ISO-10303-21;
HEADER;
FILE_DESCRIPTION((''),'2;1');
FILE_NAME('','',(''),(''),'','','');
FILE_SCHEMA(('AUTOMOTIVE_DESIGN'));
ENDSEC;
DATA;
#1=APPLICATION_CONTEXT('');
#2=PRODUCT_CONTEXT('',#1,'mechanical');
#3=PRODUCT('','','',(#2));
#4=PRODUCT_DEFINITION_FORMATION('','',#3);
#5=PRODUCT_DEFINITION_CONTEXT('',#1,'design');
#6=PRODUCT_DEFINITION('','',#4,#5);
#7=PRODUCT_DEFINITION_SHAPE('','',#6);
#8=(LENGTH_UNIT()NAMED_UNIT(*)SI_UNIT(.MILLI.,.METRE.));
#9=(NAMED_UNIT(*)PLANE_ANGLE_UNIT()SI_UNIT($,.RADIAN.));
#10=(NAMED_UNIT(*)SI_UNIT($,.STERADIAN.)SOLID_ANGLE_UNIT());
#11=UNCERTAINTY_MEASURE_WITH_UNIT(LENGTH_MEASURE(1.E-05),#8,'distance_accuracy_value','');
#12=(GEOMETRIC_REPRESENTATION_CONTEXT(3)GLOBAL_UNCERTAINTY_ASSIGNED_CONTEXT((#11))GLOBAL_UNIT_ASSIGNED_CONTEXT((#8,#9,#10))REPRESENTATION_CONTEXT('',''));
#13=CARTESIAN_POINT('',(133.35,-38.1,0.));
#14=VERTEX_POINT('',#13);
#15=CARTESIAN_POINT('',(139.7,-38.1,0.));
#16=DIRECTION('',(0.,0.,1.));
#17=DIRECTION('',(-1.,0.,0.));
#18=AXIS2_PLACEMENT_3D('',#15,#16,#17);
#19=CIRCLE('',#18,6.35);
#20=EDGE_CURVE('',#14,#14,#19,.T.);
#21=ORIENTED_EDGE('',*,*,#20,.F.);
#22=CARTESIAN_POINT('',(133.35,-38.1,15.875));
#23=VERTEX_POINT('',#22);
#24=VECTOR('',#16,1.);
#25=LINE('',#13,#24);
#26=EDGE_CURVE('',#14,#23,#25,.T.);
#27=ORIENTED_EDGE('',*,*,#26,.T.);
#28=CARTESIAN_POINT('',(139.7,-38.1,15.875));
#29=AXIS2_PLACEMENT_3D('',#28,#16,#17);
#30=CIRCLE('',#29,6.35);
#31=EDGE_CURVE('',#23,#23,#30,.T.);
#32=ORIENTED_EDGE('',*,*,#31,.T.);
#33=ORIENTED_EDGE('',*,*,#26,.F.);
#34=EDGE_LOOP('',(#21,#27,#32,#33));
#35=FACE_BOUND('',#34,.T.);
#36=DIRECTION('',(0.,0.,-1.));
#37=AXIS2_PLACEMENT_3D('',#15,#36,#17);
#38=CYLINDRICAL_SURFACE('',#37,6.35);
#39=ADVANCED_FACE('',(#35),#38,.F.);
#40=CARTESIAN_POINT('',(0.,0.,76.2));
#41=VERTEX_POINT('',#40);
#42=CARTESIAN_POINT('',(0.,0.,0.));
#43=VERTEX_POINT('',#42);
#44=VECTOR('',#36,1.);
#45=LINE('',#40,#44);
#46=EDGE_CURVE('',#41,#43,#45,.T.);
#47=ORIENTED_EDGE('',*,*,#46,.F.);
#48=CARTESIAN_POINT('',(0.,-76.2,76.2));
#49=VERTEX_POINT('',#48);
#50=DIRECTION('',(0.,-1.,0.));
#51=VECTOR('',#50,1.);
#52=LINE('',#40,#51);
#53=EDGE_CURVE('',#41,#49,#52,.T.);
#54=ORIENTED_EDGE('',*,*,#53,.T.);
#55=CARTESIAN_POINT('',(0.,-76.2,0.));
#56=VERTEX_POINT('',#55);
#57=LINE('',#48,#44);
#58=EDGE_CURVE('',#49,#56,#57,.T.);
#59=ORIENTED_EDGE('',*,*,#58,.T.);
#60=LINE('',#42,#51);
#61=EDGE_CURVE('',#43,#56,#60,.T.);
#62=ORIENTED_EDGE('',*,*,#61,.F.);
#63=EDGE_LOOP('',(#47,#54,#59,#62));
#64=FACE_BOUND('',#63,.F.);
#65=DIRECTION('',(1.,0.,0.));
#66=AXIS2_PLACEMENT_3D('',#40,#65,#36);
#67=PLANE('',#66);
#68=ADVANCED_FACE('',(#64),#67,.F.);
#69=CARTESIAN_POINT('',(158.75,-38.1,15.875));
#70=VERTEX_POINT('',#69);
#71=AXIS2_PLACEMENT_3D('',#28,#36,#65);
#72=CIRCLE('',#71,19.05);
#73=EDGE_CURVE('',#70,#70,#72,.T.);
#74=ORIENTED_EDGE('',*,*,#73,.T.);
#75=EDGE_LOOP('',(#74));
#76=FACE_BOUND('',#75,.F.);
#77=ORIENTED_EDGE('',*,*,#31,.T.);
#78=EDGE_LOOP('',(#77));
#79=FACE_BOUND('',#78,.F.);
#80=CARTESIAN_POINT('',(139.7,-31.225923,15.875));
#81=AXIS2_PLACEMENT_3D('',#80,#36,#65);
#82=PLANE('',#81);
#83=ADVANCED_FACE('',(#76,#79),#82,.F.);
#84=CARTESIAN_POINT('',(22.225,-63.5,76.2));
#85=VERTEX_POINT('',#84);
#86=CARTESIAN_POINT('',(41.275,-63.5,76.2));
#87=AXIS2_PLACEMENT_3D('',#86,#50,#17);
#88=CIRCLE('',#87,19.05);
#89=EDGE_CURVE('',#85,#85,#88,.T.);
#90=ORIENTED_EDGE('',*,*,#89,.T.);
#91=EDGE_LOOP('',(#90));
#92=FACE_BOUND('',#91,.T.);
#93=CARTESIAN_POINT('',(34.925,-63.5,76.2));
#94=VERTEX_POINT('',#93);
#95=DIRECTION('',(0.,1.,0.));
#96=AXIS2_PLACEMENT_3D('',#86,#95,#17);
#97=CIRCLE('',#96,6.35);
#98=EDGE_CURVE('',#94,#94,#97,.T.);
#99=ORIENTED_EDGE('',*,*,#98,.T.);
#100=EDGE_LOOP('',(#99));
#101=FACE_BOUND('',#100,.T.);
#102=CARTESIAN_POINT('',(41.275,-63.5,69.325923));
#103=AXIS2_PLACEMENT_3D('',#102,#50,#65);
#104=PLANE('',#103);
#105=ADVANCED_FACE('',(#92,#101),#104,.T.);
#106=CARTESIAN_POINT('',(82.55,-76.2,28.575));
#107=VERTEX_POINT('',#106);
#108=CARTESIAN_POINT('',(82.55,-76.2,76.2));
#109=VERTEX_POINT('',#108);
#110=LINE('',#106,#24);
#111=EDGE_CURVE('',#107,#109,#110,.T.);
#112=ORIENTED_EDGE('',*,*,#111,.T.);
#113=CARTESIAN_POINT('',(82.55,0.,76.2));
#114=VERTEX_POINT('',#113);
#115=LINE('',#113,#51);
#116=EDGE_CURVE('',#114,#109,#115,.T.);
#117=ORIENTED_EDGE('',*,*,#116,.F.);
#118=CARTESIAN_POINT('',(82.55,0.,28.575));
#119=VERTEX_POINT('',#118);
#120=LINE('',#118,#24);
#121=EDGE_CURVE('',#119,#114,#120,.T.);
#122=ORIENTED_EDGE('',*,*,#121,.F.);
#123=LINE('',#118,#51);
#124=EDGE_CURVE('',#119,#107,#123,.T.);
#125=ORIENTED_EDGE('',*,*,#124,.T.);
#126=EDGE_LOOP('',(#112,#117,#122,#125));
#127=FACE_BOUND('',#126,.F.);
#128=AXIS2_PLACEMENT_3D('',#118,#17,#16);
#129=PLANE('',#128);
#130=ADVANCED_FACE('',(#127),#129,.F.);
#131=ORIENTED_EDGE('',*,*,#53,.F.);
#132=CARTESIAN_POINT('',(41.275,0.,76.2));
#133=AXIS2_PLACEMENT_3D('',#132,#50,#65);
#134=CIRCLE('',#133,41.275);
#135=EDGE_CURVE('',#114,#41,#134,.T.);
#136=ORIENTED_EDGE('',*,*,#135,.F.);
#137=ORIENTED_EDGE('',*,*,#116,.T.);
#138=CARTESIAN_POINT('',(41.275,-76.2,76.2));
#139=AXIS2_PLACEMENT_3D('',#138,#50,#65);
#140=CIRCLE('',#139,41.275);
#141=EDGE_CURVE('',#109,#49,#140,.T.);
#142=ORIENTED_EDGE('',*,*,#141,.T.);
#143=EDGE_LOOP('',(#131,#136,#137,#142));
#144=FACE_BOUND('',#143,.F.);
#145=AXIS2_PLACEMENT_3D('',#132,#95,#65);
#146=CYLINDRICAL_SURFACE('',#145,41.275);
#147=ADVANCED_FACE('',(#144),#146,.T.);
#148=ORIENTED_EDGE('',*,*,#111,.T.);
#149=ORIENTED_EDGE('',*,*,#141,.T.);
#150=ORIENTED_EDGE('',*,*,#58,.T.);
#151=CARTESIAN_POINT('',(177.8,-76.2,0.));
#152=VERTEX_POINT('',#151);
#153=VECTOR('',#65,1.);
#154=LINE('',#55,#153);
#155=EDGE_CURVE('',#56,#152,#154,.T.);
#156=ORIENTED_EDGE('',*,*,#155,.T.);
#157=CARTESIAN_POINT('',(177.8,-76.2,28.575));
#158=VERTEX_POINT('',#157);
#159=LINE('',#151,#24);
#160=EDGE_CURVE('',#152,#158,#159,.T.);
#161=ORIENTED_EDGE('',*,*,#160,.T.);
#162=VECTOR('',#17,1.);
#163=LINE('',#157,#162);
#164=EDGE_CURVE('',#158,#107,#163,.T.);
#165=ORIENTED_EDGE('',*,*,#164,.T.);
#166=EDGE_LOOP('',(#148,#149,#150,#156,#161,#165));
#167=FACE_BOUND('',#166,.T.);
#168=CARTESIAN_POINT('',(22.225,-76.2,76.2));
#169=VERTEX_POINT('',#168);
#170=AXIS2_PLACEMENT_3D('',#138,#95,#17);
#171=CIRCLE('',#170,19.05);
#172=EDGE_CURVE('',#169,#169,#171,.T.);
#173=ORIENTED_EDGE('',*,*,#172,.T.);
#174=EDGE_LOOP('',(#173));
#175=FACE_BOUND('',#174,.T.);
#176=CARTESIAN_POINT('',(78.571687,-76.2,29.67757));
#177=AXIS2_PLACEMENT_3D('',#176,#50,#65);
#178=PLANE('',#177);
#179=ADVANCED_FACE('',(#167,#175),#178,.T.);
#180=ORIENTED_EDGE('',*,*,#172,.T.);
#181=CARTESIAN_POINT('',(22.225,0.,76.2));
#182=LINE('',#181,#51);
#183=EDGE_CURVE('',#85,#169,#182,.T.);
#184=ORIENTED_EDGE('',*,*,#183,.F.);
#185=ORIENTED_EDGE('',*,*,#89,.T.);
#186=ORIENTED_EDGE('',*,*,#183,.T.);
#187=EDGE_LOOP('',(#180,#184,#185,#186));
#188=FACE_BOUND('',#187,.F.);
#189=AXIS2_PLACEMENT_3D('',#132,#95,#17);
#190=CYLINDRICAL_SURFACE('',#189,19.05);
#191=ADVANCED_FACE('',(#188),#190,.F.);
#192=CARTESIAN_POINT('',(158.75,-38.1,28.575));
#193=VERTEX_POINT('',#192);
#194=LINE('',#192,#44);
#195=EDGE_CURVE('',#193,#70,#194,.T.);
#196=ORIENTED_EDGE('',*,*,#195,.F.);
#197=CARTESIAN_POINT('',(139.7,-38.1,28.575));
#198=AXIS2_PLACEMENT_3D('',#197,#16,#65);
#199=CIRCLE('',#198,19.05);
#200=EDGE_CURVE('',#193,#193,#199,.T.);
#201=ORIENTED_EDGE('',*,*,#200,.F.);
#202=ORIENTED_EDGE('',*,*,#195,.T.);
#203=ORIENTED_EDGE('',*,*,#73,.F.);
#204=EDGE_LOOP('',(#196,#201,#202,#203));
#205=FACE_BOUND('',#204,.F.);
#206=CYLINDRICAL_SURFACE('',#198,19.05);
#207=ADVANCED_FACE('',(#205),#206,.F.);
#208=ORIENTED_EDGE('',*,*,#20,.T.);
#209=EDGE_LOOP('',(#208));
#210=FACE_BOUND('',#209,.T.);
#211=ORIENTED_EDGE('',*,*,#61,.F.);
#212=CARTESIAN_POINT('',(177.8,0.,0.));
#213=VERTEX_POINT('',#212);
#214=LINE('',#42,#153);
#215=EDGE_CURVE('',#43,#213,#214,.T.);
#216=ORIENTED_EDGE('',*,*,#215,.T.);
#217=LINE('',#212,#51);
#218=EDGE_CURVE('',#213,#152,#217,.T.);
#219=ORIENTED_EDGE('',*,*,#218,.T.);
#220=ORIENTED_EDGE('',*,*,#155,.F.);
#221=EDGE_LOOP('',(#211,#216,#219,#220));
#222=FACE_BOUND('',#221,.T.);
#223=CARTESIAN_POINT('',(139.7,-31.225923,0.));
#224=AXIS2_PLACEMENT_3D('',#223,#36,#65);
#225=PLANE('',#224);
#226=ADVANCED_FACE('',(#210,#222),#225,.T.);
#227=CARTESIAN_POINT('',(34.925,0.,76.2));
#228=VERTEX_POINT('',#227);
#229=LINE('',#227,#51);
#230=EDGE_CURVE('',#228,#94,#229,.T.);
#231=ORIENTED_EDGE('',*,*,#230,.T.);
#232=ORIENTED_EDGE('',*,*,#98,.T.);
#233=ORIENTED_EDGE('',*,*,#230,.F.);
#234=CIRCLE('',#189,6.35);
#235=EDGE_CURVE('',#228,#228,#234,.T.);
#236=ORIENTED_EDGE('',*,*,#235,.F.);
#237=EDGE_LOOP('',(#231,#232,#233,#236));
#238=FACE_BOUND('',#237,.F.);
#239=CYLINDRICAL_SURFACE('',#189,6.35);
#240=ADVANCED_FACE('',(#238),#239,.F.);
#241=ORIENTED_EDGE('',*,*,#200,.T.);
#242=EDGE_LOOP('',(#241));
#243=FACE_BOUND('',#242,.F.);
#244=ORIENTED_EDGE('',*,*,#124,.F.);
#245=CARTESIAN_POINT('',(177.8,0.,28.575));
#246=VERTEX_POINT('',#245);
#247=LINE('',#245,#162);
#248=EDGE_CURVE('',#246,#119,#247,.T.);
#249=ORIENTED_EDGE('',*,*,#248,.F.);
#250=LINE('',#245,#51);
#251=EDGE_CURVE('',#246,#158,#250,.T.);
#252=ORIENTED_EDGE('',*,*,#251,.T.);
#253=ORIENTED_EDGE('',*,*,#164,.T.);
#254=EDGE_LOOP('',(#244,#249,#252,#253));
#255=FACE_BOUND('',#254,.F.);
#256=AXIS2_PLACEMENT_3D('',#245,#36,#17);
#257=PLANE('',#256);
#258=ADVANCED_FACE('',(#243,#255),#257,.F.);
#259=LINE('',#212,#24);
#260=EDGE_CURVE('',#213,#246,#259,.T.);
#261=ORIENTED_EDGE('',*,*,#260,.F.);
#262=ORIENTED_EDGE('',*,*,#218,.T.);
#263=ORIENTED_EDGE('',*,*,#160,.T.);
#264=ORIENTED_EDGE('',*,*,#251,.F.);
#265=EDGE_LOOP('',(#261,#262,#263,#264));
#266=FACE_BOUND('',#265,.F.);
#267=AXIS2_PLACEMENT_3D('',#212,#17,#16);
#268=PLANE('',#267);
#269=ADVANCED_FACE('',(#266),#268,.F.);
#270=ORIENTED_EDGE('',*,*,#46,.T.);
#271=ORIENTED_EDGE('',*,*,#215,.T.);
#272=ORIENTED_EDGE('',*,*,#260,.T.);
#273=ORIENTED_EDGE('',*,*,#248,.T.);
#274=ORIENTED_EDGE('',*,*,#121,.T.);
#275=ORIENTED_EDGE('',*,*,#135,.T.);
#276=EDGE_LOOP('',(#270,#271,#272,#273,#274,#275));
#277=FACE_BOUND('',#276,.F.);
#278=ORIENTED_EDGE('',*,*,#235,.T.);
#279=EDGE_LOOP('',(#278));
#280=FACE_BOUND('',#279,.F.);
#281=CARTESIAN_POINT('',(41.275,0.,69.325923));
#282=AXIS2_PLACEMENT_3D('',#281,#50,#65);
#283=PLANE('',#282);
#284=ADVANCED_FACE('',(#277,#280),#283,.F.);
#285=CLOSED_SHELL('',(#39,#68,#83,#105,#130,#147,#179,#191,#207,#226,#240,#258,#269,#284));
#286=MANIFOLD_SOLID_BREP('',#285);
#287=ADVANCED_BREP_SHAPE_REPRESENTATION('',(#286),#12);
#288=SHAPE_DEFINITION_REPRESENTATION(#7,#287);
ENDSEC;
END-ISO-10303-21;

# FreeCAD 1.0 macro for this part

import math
import FreeCAD as App
import Part
import Sketcher
from FreeCAD import Vector
Q = App.Units.Quantity

doc = App.newDocument("Part")
body = doc.addObject("PartDesign::Body", "Body")

sketch1 = body.newObject("Sketcher::SketchObject", "Sketch")
sketch1.AttachmentSupport = (doc.getObject("XZ_Plane"), [""])
sketch1.MapMode = "FlatFace"
sketch1.addGeometry([
    Part.LineSegment(Vector(0, 76, 0), Vector(0, 0, 0)),
    Part.LineSegment(Vector(0, 0, 0), Vector(178, 0, 0)),
    Part.LineSegment(Vector(178, 0, 0), Vector(178, 29, 0)),
    Part.LineSegment(Vector(178, 29, 0), Vector(83, 29, 0)),
    Part.LineSegment(Vector(83, 29, 0), Vector(83, 76, 0)),
    Part.ArcOfCircle(Part.Circle(Vector(41, 76, 0), Vector(0, 0, 1), 41), math.radians(0), math.radians(180)),
    Part.Circle(Vector(41, 76, 0), Vector(0, 0, 1), 19),
], False)
sketch1.addConstraint([
    Sketcher.Constraint("Coincident", 0, 2, 1, 1),
    Sketcher.Constraint("Coincident", 1, 2, 2, 1),
    Sketcher.Constraint("Coincident", 2, 2, 3, 1),
    Sketcher.Constraint("Coincident", 3, 2, 4, 1),
    Sketcher.Constraint("Tangent", 4, 2, 5, 1),
    Sketcher.Constraint("Tangent", 5, 2, 0, 1),
    Sketcher.Constraint("Vertical", 0),
    Sketcher.Constraint("Horizontal", 1),
    Sketcher.Constraint("Vertical", 2),
    Sketcher.Constraint("Horizontal", 3),
    Sketcher.Constraint("Vertical", 4),
    Sketcher.Constraint("Coincident", 0, 2, -1, 1),
    Sketcher.Constraint("Coincident", 6, 3, 5, 3),
    Sketcher.Constraint("Diameter", 6, Q("1.5 in")),
    Sketcher.Constraint("DistanceX", 1, 1, 1, 2, Q("7 in")),
    Sketcher.Constraint("DistanceY", 0, 2, 0, 1, Q("3 in")),
    Sketcher.Constraint("Radius", 5, Q("1.625 in")),
    Sketcher.Constraint("DistanceY", 2, 1, 2, 2, Q("1.125 in")),
])
pad1 = body.newObject("PartDesign::Pad", "Pad")
pad1.Profile = sketch1
pad1.Length = Q("3 in")

sketch2 = body.newObject("Sketcher::SketchObject", "Sketch001")
sketch2.AttachmentSupport = (doc.getObject("XZ_Plane"), [""])
sketch2.MapMode = "FlatFace"
sketch2.addGeometry([
    Part.Circle(Vector(41, 76, 0), Vector(0, 0, 1), 19),
    Part.Circle(Vector(41, 76, 0), Vector(0, 0, 1), 6),
], False)
sketch2.addConstraint([
    Sketcher.Constraint("Coincident", 1, 3, 0, 3),
    Sketcher.Constraint("Diameter", 0, Q("1.5 in")),
    Sketcher.Constraint("Diameter", 1, Q("0.5 in")),
    Sketcher.Constraint("DistanceY", -1, 1, 0, 3, Q("3 in")),
    Sketcher.Constraint("DistanceX", -1, 1, 0, 3, Q("1.625 in")),
])
pad2 = body.newObject("PartDesign::Pad", "Pad001")
pad2.Profile = sketch2
pad2.Length = Q("2.5 in")

sketch3 = body.newObject("Sketcher::SketchObject", "Sketch002")
sketch3.AttachmentSupport = (doc.getObject("XY_Plane"), [""])
sketch3.MapMode = "FlatFace"
sketch3.AttachmentOffset = App.Placement(Vector(0, 0, 1.125 * 25.4), App.Rotation())
sketch3.addGeometry(Part.Circle(Vector(140, -38, 0), Vector(0, 0, 1), 19), False)
sketch3.addConstraint([
    Sketcher.Constraint("Diameter", 0, Q("1.5 in")),
    Sketcher.Constraint("DistanceX", -1, 1, 0, 3, Q("5.5 in")),
    Sketcher.Constraint("DistanceY", 0, 3, -1, 1, Q("1.5 in")),
])
pocket1 = body.newObject("PartDesign::Pocket", "Pocket")
pocket1.Profile = sketch3
pocket1.Length = Q("5 in")

sketch4 = body.newObject("Sketcher::SketchObject", "Sketch003")
sketch4.AttachmentSupport = (doc.getObject("XY_Plane"), [""])
sketch4.MapMode = "FlatFace"
sketch4.addGeometry([
    Part.Circle(Vector(140, -38, 0), Vector(0, 0, 1), 19),
    Part.Circle(Vector(140, -38, 0), Vector(0, 0, 1), 6),
], False)
sketch4.addConstraint([
    Sketcher.Constraint("Coincident", 1, 3, 0, 3),
    Sketcher.Constraint("Diameter", 0, Q("1.5 in")),
    Sketcher.Constraint("Diameter", 1, Q("0.5 in")),
    Sketcher.Constraint("DistanceX", -1, 1, 0, 3, Q("5.5 in")),
    Sketcher.Constraint("DistanceY", 0, 3, -1, 1, Q("1.5 in")),
])
pad3 = body.newObject("PartDesign::Pad", "Pad002")
pad3.Profile = sketch4
pad3.Length = Q("0.625 in")

doc.recompute()
